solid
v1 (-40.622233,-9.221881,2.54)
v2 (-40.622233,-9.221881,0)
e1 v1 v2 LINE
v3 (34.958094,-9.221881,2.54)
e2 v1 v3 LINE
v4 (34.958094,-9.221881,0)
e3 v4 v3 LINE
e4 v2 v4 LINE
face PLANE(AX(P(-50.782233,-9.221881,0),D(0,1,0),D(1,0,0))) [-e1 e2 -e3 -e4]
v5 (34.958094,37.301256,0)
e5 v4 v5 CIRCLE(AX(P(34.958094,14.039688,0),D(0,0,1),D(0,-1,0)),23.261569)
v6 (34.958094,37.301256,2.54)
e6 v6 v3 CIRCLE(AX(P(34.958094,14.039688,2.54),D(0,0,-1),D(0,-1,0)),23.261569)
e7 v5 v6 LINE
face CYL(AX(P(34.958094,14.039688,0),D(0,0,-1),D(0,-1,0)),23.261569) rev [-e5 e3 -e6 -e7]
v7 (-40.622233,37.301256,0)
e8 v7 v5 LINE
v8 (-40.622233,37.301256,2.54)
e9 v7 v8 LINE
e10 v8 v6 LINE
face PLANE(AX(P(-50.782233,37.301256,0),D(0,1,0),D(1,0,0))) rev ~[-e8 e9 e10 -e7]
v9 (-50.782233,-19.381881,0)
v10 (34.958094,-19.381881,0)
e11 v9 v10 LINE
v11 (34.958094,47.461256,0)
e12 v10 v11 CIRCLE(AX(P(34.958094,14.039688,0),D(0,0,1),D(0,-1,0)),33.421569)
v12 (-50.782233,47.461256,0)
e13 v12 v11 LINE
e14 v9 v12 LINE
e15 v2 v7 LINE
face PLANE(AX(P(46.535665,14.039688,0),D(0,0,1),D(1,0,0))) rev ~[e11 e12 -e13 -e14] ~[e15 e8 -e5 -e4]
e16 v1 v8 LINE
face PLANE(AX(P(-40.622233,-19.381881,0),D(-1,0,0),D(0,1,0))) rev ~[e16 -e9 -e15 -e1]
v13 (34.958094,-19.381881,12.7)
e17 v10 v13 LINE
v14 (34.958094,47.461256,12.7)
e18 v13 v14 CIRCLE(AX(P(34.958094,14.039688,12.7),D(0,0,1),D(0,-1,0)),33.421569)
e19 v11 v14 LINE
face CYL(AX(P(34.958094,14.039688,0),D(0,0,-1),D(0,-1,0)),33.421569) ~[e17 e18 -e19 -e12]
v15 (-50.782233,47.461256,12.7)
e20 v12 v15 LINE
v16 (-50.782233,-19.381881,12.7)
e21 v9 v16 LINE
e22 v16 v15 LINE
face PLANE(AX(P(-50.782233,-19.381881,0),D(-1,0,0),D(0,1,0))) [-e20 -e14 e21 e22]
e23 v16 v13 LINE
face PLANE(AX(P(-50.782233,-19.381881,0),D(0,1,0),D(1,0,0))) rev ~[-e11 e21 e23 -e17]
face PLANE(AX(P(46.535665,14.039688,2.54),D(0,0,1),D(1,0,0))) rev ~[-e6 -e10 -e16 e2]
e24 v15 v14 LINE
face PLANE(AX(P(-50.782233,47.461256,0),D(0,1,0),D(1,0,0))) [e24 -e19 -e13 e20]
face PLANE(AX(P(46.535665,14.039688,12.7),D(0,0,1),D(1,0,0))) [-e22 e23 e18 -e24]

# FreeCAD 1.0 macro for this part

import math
import FreeCAD as App
import Part
import Sketcher
Q = App.Units.Quantity


def faces_at(feature, points):
    """Names of the faces that lie closest to the given points."""
    faces = feature.Shape.Faces
    near = lambda p: min(range(len(faces)), key=lambda i: faces[i].distToShape(Part.Vertex(*p))[0])
    return sorted({f"Face{near(p) + 1}" for p in points})

doc = App.newDocument("Part")
body = doc.addObject("PartDesign::Body", "Body")

# Sketch on XY plane
sketch1 = doc.addObject("Sketcher::SketchObject", "Sketch")
body.addObject(sketch1)
sketch1.AttachmentSupport = (doc.XY_Plane, [""])
sketch1.MapMode = "FlatFace"
sketch1.addGeometry(Part.ArcOfCircle(Part.Circle(App.Vector(35, 14, 0), App.Vector(0, 0, 1), 33), math.radians(-90), math.radians(90)), False)
sketch1.addGeometry(Part.LineSegment(App.Vector(35, 47, 0), App.Vector(-51, 47, 0)), False)
sketch1.addGeometry(Part.LineSegment(App.Vector(-51, 47, 0), App.Vector(-51, -19, 0)), False)
sketch1.addGeometry(Part.LineSegment(App.Vector(-51, -19, 0), App.Vector(35, -19, 0)), False)
sketch1.addConstraint(Sketcher.Constraint("Tangent", 0, 2, 1, 1))
sketch1.addConstraint(Sketcher.Constraint("Coincident", 1, 2, 2, 1))
sketch1.addConstraint(Sketcher.Constraint("Coincident", 2, 2, 3, 1))
sketch1.addConstraint(Sketcher.Constraint("Tangent", 3, 2, 0, 1))
sketch1.addConstraint(Sketcher.Constraint("Horizontal", 1))
sketch1.addConstraint(Sketcher.Constraint("Vertical", 2))
sketch1.addConstraint(Sketcher.Constraint("Horizontal", 3))
sketch1.addConstraint(Sketcher.Constraint("Radius", 0, 33.421569))
sketch1.addConstraint(Sketcher.Constraint("DistanceX", 1, 2, 1, 1, 85.740328))
sketch1.addConstraint(Sketcher.Constraint("DistanceY", 2, 2, -1, 1, 19.381881))
sketch1.addConstraint(Sketcher.Constraint("DistanceX", -1, 1, 0, 3, 34.958094))
pad1 = doc.addObject("PartDesign::Pad", "Pad")
body.addObject(pad1)
pad1.Profile = sketch1
pad1.Length = Q("0.5 in")
doc.recompute()

thickness = doc.addObject("PartDesign::Thickness", "Thickness")
body.addObject(thickness)
thickness.Base = (pad1, faces_at(pad1, [(8.799, 14.04, 0)]))
thickness.Value = Q("0.4 in")
thickness.Reversed = True
thickness.Join = "Arc"

doc.recompute()
